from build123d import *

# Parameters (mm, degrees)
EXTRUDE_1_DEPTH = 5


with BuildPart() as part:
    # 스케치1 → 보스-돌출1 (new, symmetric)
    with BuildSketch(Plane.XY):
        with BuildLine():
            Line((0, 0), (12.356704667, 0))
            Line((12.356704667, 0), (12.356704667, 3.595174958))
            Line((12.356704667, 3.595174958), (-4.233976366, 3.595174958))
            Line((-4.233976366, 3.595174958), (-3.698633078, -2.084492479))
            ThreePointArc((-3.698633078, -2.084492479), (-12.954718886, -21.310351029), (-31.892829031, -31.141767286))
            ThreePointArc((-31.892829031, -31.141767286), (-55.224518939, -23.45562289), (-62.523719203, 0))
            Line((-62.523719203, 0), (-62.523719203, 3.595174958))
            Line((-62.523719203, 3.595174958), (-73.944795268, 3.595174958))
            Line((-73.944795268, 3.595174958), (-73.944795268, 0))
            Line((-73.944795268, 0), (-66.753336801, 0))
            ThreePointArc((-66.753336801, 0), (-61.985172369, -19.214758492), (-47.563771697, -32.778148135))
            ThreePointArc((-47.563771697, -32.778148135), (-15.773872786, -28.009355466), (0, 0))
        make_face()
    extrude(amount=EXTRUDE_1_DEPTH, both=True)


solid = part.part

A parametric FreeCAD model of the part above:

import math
import FreeCAD as App
import Part
import Sketcher
from FreeCAD import Vector
Q = App.Units.Quantity

doc = App.newDocument("Part")
params = doc.addObject("Spreadsheet::Sheet", "Params")
for row, (alias, value) in enumerate([
    ("pad1_length", "10 mm"),
], start=1):
    params.set(f"A{row}", alias)
    params.set(f"B{row}", "=" + value)
    params.setAlias(f"B{row}", alias)

body = doc.addObject("PartDesign::Body", "Body")

sketch1 = body.newObject("Sketcher::SketchObject", "Sketch")
sketch1.AttachmentSupport = (doc.getObject("XY_Plane"), [""])
sketch1.MapMode = "FlatFace"
sketch1.addGeometry([
    Part.LineSegment(Vector(0, 0, 0), Vector(12.4, 0, 0)),
    Part.LineSegment(Vector(12.4, 0, 0), Vector(12.4, 3.6, 0)),
    Part.LineSegment(Vector(12.4, 3.6, 0), Vector(-4.2, 3.6, 0)),
    Part.LineSegment(Vector(-4.2, 3.6, 0), Vector(-3.7, -2.1, 0)),
    Part.ArcOfCircle(Part.Circle(Vector(-37.2, 2.2, 0), Vector(0, 0, 1), 33.7), math.radians(-81), math.radians(-7)),
    Part.ArcOfCircle(Part.Circle(Vector(-36.1, -4.6, 0), Vector(0, 0, 1), 26.8), math.radians(170), math.radians(279)),
    Part.LineSegment(Vector(-62.5, 0, 0), Vector(-62.5, 3.6, 0)),
    Part.LineSegment(Vector(-62.5, 3.6, 0), Vector(-73.9, 3.6, 0)),
    Part.LineSegment(Vector(-73.9, 3.6, 0), Vector(-73.9, 0, 0)),
    Part.LineSegment(Vector(-73.9, 0, 0), Vector(-66.8, 0, 0)),
    Part.ArcOfCircle(Part.Circle(Vector(-31.7, -1.5, 0), Vector(0, 0, 1), 35), math.radians(178), math.radians(243)),
    Part.ArcOfCircle(Part.Circle(Vector(-36.5, 2.1, 0), Vector(0, 0, 1), 36.6), math.radians(-108), math.radians(-3)),
], False)
sketch1.addConstraint([
    Sketcher.Constraint("Coincident", 0, 2, 1, 1),
    Sketcher.Constraint("Coincident", 1, 2, 2, 1),
    Sketcher.Constraint("Coincident", 2, 2, 3, 1),
    Sketcher.Constraint("Coincident", 3, 2, 4, 2),
    Sketcher.Constraint("Tangent", 4, 1, 5, 2),
    Sketcher.Constraint("Coincident", 5, 1, 6, 1),
    Sketcher.Constraint("Coincident", 6, 2, 7, 1),
    Sketcher.Constraint("Coincident", 7, 2, 8, 1),
    Sketcher.Constraint("Coincident", 8, 2, 9, 1),
    Sketcher.Constraint("Coincident", 9, 2, 10, 1),
    Sketcher.Constraint("Coincident", 10, 2, 11, 1),
    Sketcher.Constraint("Coincident", 11, 2, 0, 1),
    Sketcher.Constraint("Horizontal", 0),
    Sketcher.Constraint("Vertical", 1),
    Sketcher.Constraint("Horizontal", 2),
    Sketcher.Constraint("Vertical", 6),
    Sketcher.Constraint("Horizontal", 7),
    Sketcher.Constraint("Vertical", 8),
    Sketcher.Constraint("Horizontal", 9),
    Sketcher.Constraint("Coincident", 11, 2, -1, 1),
    Sketcher.Constraint("PointOnObject", 5, 1, -1),
    Sketcher.Constraint("PointOnObject", 8, 2, -1),
    Sketcher.Constraint("Horizontal", 2, 2, 6, 2),
    Sketcher.Constraint("Radius", 10, Q("35.039162 mm")),
    Sketcher.Constraint("Radius", 11, Q("36.611089 mm")),
    Sketcher.Constraint("Radius", 4, Q("33.749996 mm")),
    Sketcher.Constraint("Radius", 5, Q("26.833884 mm")),
    Sketcher.Constraint("DistanceX", 5, 3, 4, 1, Q("4.200999 mm")),
    Sketcher.Constraint("DistanceX", 2, 2, 2, 1, Q("16.590681 mm")),
    Sketcher.Constraint("DistanceX", 9, 1, 9, 2, Q("7.191458 mm")),
    Sketcher.Constraint("Distance", 3, Q("5.704841 mm")),
    Sketcher.Constraint("DistanceX", 0, 1, 0, 2, Q("12.356705 mm")),
    Sketcher.Constraint("DistanceX", 7, 2, 7, 1, Q("11.421076 mm")),
    Sketcher.Constraint("DistanceY", 1, 1, 1, 2, Q("3.595175 mm")),
    Sketcher.Constraint("DistanceY", -1, 1, 4, 3, Q("2.192061 mm")),
    Sketcher.Constraint("DistanceX", 5, 3, -1, 1, Q("36.093828 mm")),
    Sketcher.Constraint("DistanceX", 11, 3, -1, 1, Q("36.54869 mm")),
    Sketcher.Constraint("DistanceX", 10, 2, -1, 1, Q("47.563772 mm")),
])
pad1 = body.newObject("PartDesign::Pad", "Pad")
pad1.Profile = sketch1
pad1.setExpression("Length", "Params.pad1_length")
pad1.Midplane = True

doc.recompute()
